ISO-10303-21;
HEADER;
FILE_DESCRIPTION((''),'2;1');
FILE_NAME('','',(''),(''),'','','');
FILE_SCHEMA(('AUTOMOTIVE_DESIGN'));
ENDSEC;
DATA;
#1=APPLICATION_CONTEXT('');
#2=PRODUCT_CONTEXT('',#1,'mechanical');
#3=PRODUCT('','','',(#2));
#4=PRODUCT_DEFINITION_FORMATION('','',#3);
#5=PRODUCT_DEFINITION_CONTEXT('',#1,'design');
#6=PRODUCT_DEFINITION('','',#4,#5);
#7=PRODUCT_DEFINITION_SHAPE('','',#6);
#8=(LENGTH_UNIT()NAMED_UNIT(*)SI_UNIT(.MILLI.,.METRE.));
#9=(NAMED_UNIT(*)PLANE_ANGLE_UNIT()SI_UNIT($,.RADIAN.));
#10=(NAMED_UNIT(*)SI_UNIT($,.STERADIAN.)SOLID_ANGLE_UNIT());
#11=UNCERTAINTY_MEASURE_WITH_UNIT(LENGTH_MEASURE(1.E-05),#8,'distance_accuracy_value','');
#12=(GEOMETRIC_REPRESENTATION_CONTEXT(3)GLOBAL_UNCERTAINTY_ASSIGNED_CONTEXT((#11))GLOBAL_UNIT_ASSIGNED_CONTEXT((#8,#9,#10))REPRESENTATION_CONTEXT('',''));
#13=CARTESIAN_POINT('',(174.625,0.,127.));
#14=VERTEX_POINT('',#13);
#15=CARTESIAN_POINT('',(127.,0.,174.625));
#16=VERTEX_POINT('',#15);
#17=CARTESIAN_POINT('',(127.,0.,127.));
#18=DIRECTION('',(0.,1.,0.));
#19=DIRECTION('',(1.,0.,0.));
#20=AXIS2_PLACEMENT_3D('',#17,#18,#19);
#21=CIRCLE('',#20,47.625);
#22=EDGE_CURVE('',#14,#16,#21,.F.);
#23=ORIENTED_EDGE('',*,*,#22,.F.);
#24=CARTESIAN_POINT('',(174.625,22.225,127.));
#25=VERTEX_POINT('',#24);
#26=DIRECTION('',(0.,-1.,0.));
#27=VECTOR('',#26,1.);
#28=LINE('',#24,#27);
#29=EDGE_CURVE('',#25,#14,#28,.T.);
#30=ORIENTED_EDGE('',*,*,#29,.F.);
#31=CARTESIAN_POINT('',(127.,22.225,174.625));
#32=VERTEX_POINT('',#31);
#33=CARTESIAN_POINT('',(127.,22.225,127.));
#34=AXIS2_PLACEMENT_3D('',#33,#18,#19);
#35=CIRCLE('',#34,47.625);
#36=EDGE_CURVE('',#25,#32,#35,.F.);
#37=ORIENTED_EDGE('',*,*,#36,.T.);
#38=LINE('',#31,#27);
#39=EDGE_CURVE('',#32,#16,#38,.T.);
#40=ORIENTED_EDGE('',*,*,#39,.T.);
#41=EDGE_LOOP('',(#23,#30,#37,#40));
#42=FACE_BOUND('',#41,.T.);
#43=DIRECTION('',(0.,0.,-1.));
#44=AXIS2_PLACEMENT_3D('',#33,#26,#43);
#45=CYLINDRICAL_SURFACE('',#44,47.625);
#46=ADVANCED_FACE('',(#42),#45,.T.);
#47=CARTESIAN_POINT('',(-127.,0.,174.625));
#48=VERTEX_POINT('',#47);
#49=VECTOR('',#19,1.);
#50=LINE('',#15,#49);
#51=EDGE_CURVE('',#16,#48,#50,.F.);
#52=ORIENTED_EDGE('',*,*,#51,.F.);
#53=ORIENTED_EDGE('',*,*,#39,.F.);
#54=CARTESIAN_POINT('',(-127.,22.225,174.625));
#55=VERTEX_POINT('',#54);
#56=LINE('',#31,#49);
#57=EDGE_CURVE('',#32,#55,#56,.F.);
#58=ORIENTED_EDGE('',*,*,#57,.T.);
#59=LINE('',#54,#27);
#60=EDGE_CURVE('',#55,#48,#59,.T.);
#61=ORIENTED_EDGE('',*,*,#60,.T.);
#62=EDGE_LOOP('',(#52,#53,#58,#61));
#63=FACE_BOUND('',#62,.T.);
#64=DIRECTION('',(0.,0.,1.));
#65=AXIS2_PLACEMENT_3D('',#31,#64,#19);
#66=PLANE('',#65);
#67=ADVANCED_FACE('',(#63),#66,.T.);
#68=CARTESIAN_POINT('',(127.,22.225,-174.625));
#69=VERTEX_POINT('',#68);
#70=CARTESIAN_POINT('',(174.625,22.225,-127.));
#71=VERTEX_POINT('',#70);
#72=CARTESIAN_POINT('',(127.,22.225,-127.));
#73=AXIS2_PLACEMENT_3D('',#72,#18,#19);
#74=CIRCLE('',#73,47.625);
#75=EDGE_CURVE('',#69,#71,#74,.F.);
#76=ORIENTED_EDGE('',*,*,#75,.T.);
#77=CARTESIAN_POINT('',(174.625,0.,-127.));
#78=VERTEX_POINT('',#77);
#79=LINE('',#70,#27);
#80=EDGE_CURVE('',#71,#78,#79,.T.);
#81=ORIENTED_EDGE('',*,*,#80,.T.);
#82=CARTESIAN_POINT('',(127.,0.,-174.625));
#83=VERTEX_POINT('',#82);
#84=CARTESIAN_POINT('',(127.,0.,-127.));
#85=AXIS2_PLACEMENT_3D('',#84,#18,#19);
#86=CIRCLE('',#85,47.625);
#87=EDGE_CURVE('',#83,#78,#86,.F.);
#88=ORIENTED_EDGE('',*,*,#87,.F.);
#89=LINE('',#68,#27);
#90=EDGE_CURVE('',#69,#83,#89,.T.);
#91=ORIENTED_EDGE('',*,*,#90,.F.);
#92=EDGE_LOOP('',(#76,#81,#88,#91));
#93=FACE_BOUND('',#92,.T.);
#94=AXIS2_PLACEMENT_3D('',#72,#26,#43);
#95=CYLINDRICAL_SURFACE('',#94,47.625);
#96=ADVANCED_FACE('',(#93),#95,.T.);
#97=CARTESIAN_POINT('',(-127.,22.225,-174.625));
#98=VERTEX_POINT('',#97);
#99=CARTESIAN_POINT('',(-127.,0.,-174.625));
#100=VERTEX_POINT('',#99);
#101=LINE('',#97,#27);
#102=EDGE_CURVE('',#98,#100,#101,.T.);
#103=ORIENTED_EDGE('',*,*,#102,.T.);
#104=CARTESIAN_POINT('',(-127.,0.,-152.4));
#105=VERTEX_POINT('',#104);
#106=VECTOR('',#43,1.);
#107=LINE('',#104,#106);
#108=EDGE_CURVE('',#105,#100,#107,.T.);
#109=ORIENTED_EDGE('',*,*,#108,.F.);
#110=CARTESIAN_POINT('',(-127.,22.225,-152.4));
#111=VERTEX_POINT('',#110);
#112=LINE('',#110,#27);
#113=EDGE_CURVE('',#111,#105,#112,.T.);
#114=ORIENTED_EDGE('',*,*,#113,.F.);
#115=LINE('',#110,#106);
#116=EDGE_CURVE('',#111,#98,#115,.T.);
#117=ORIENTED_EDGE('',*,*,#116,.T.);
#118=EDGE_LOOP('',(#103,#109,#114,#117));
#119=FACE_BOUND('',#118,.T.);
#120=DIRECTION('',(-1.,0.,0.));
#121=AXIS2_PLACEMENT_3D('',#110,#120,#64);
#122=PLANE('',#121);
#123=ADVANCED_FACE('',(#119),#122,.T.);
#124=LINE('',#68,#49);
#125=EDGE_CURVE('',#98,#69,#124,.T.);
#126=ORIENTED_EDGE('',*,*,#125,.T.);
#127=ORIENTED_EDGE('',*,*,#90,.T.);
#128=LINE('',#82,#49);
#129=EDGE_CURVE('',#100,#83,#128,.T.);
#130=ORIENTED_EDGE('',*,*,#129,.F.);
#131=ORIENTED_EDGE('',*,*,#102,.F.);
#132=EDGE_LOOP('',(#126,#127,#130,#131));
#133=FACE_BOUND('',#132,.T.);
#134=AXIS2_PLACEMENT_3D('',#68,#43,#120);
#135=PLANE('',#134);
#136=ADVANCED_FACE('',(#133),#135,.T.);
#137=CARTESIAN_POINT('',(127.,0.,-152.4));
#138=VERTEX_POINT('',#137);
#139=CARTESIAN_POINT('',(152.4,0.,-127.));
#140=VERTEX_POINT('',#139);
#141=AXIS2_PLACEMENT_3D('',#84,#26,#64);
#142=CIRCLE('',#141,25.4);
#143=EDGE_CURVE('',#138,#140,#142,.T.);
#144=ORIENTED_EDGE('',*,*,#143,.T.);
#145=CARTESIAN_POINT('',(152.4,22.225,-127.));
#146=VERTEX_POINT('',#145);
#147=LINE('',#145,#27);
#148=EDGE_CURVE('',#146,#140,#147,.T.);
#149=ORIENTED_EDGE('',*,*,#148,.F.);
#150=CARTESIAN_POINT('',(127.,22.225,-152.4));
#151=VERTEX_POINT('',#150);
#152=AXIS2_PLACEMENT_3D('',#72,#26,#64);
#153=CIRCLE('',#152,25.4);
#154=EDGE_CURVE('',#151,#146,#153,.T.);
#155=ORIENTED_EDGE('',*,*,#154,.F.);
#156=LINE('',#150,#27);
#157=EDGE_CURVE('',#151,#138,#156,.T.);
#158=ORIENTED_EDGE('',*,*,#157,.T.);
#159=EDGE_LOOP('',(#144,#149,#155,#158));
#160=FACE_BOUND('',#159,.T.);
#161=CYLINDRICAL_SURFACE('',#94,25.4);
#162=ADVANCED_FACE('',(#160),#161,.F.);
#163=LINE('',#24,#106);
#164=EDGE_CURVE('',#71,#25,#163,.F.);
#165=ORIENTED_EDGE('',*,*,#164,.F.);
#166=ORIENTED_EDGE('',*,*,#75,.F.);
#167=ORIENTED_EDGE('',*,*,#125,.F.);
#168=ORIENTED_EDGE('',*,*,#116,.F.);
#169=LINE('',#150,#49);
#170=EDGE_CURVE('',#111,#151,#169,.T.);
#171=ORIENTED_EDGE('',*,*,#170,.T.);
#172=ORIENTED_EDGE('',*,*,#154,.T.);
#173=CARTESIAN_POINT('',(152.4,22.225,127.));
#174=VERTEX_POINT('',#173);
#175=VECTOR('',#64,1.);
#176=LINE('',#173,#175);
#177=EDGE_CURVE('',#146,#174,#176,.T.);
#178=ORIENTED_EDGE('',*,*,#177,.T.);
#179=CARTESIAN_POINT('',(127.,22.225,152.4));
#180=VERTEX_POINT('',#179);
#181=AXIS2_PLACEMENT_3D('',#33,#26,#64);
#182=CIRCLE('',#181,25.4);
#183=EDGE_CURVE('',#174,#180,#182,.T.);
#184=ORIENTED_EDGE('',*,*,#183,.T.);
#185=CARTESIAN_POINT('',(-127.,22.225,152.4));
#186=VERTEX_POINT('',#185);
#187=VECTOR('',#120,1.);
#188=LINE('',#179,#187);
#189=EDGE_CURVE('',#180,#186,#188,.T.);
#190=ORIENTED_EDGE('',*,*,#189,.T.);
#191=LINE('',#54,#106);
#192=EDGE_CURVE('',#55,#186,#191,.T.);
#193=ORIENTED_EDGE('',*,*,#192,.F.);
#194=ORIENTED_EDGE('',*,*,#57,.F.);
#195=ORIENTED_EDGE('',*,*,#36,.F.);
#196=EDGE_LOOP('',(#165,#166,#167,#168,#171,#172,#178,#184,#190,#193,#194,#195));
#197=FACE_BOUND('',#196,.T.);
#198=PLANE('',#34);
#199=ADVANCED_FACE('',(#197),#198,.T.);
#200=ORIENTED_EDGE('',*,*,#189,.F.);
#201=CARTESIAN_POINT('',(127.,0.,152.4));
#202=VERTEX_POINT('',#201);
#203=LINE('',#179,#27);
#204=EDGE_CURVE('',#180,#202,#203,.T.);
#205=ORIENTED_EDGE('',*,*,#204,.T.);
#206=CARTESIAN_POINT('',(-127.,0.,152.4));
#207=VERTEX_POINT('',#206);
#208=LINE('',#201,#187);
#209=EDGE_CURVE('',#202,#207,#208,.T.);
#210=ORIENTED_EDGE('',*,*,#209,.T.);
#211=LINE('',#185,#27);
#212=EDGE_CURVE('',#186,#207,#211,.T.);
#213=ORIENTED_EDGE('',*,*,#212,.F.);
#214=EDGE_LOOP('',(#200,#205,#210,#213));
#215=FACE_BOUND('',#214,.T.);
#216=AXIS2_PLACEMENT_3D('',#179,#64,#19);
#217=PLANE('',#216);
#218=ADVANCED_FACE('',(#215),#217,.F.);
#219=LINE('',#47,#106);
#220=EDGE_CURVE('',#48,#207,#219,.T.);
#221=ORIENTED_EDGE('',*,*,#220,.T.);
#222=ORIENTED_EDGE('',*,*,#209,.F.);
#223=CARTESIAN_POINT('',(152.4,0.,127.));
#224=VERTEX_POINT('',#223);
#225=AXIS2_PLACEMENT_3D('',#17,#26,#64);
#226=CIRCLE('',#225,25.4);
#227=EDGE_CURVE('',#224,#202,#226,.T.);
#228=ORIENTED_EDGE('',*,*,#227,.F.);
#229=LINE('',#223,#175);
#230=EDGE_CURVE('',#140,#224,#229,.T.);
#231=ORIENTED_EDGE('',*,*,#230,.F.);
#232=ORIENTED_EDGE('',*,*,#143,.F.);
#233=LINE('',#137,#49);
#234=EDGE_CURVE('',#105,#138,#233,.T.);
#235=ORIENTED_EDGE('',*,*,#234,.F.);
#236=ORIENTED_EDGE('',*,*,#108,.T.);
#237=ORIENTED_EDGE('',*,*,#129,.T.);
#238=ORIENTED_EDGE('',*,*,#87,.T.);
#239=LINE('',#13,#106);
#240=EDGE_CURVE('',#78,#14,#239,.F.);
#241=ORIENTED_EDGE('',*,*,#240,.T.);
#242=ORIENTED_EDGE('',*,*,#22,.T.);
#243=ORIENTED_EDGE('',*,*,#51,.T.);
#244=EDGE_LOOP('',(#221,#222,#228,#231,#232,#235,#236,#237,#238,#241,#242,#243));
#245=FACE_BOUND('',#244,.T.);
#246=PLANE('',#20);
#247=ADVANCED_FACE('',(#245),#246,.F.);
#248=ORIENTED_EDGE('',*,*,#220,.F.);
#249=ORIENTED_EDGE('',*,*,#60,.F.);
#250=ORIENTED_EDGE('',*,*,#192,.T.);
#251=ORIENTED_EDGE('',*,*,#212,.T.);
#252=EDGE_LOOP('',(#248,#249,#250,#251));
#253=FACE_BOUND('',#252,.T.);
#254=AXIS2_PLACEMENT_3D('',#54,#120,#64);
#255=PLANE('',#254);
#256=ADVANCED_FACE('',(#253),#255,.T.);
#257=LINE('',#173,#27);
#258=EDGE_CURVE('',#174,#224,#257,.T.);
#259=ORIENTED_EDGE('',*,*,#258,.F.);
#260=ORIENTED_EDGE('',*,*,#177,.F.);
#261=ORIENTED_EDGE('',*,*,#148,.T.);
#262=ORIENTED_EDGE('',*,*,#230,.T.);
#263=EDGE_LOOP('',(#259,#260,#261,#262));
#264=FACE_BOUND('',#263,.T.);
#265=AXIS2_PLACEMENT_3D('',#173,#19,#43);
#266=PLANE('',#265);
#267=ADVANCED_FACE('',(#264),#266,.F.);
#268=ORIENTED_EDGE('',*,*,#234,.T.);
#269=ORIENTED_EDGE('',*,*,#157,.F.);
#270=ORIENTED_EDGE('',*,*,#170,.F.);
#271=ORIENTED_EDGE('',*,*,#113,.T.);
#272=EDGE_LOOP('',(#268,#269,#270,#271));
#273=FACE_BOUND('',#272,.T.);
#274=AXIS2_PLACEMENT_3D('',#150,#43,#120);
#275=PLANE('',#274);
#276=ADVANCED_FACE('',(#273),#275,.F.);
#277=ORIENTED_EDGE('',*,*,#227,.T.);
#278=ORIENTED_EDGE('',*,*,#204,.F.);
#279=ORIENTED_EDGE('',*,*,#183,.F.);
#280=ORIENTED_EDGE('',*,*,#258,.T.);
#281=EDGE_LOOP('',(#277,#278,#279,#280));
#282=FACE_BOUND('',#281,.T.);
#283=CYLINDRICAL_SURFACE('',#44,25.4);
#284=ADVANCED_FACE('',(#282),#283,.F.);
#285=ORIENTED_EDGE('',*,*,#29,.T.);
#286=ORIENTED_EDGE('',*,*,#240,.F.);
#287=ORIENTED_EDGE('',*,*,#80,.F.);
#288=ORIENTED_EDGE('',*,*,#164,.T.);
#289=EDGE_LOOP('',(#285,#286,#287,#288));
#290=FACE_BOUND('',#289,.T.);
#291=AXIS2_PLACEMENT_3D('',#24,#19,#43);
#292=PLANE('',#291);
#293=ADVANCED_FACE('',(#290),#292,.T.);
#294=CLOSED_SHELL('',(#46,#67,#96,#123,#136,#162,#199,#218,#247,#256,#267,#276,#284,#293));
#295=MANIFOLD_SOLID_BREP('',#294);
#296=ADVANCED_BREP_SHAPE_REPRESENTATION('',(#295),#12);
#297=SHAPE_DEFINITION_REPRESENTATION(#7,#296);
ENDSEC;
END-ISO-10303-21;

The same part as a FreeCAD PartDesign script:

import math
import FreeCAD as App
import Part
import Sketcher
Q = App.Units.Quantity

doc = App.newDocument("Part")
body = doc.addObject("PartDesign::Body", "Body")

sketch1 = body.newObject("Sketcher::SketchObject", "Sketch")
sketch1.AttachmentSupport = (doc.getObject("XZ_Plane"), [""])
sketch1.MapMode = "FlatFace"
sketch1.addGeometry([
    Part.LineSegment(App.Vector(-127, -152, 0), App.Vector(127, -152, 0)),
    Part.ArcOfCircle(Part.Circle(App.Vector(127, -127, 0), App.Vector(0, 0, 1), 25), math.radians(-90), math.radians(0)),
    Part.LineSegment(App.Vector(152, -127, 0), App.Vector(152, 127, 0)),
    Part.ArcOfCircle(Part.Circle(App.Vector(127, 127, 0), App.Vector(0, 0, 1), 25), math.radians(0), math.radians(90)),
    Part.LineSegment(App.Vector(127, 152, 0), App.Vector(-127, 152, 0)),
    Part.LineSegment(App.Vector(-127, 152, 0), App.Vector(-127, 175, 0)),
    Part.LineSegment(App.Vector(-127, 175, 0), App.Vector(127, 175, 0)),
    Part.ArcOfCircle(Part.Circle(App.Vector(127, 127, 0), App.Vector(0, 0, 1), 48), math.radians(0), math.radians(90)),
    Part.LineSegment(App.Vector(175, 127, 0), App.Vector(175, -127, 0)),
    Part.ArcOfCircle(Part.Circle(App.Vector(127, -127, 0), App.Vector(0, 0, 1), 48), math.radians(-90), math.radians(0)),
    Part.LineSegment(App.Vector(127, -175, 0), App.Vector(-127, -175, 0)),
    Part.LineSegment(App.Vector(-127, -175, 0), App.Vector(-127, -152, 0)),
], False)
sketch1.addConstraint([
    Sketcher.Constraint("Tangent", 0, 2, 1, 1),
    Sketcher.Constraint("Tangent", 1, 2, 2, 1),
    Sketcher.Constraint("Tangent", 2, 2, 3, 1),
    Sketcher.Constraint("Tangent", 3, 2, 4, 1),
    Sketcher.Constraint("Coincident", 4, 2, 5, 1),
    Sketcher.Constraint("Coincident", 5, 2, 6, 1),
    Sketcher.Constraint("Tangent", 6, 2, 7, 2),
    Sketcher.Constraint("Tangent", 7, 1, 8, 1),
    Sketcher.Constraint("Tangent", 8, 2, 9, 2),
    Sketcher.Constraint("Tangent", 9, 1, 10, 1),
    Sketcher.Constraint("Coincident", 10, 2, 11, 1),
    Sketcher.Constraint("Coincident", 11, 2, 0, 1),
    Sketcher.Constraint("Horizontal", 0),
    Sketcher.Constraint("Vertical", 2),
    Sketcher.Constraint("Horizontal", 4),
    Sketcher.Constraint("Vertical", 5),
    Sketcher.Constraint("Horizontal", 6),
    Sketcher.Constraint("Vertical", 8),
    Sketcher.Constraint("Horizontal", 10),
    Sketcher.Constraint("Vertical", 11),
    Sketcher.Constraint("Coincident", 7, 3, 3, 3),
    Sketcher.Constraint("Coincident", 9, 3, 1, 3),
    Sketcher.Constraint("Equal", 1, 3),
    Sketcher.Constraint("Symmetric", 0, 2, 4, 2, -1, 1),
    Sketcher.Constraint("Vertical", 5, 2, 10, 2),
    Sketcher.Constraint("Equal", 10, 2),
    Sketcher.Constraint("Radius", 1, Q("1 in")),
    Sketcher.Constraint("DistanceX", 0, 1, 0, 2, Q("10 in")),
    Sketcher.Constraint("Radius", 7, Q("1.875 in")),
])
pad1 = body.newObject("PartDesign::Pad", "Pad")
pad1.Profile = sketch1
pad1.Length = Q("0.875 in")
pad1.Reversed = True

doc.recompute()
